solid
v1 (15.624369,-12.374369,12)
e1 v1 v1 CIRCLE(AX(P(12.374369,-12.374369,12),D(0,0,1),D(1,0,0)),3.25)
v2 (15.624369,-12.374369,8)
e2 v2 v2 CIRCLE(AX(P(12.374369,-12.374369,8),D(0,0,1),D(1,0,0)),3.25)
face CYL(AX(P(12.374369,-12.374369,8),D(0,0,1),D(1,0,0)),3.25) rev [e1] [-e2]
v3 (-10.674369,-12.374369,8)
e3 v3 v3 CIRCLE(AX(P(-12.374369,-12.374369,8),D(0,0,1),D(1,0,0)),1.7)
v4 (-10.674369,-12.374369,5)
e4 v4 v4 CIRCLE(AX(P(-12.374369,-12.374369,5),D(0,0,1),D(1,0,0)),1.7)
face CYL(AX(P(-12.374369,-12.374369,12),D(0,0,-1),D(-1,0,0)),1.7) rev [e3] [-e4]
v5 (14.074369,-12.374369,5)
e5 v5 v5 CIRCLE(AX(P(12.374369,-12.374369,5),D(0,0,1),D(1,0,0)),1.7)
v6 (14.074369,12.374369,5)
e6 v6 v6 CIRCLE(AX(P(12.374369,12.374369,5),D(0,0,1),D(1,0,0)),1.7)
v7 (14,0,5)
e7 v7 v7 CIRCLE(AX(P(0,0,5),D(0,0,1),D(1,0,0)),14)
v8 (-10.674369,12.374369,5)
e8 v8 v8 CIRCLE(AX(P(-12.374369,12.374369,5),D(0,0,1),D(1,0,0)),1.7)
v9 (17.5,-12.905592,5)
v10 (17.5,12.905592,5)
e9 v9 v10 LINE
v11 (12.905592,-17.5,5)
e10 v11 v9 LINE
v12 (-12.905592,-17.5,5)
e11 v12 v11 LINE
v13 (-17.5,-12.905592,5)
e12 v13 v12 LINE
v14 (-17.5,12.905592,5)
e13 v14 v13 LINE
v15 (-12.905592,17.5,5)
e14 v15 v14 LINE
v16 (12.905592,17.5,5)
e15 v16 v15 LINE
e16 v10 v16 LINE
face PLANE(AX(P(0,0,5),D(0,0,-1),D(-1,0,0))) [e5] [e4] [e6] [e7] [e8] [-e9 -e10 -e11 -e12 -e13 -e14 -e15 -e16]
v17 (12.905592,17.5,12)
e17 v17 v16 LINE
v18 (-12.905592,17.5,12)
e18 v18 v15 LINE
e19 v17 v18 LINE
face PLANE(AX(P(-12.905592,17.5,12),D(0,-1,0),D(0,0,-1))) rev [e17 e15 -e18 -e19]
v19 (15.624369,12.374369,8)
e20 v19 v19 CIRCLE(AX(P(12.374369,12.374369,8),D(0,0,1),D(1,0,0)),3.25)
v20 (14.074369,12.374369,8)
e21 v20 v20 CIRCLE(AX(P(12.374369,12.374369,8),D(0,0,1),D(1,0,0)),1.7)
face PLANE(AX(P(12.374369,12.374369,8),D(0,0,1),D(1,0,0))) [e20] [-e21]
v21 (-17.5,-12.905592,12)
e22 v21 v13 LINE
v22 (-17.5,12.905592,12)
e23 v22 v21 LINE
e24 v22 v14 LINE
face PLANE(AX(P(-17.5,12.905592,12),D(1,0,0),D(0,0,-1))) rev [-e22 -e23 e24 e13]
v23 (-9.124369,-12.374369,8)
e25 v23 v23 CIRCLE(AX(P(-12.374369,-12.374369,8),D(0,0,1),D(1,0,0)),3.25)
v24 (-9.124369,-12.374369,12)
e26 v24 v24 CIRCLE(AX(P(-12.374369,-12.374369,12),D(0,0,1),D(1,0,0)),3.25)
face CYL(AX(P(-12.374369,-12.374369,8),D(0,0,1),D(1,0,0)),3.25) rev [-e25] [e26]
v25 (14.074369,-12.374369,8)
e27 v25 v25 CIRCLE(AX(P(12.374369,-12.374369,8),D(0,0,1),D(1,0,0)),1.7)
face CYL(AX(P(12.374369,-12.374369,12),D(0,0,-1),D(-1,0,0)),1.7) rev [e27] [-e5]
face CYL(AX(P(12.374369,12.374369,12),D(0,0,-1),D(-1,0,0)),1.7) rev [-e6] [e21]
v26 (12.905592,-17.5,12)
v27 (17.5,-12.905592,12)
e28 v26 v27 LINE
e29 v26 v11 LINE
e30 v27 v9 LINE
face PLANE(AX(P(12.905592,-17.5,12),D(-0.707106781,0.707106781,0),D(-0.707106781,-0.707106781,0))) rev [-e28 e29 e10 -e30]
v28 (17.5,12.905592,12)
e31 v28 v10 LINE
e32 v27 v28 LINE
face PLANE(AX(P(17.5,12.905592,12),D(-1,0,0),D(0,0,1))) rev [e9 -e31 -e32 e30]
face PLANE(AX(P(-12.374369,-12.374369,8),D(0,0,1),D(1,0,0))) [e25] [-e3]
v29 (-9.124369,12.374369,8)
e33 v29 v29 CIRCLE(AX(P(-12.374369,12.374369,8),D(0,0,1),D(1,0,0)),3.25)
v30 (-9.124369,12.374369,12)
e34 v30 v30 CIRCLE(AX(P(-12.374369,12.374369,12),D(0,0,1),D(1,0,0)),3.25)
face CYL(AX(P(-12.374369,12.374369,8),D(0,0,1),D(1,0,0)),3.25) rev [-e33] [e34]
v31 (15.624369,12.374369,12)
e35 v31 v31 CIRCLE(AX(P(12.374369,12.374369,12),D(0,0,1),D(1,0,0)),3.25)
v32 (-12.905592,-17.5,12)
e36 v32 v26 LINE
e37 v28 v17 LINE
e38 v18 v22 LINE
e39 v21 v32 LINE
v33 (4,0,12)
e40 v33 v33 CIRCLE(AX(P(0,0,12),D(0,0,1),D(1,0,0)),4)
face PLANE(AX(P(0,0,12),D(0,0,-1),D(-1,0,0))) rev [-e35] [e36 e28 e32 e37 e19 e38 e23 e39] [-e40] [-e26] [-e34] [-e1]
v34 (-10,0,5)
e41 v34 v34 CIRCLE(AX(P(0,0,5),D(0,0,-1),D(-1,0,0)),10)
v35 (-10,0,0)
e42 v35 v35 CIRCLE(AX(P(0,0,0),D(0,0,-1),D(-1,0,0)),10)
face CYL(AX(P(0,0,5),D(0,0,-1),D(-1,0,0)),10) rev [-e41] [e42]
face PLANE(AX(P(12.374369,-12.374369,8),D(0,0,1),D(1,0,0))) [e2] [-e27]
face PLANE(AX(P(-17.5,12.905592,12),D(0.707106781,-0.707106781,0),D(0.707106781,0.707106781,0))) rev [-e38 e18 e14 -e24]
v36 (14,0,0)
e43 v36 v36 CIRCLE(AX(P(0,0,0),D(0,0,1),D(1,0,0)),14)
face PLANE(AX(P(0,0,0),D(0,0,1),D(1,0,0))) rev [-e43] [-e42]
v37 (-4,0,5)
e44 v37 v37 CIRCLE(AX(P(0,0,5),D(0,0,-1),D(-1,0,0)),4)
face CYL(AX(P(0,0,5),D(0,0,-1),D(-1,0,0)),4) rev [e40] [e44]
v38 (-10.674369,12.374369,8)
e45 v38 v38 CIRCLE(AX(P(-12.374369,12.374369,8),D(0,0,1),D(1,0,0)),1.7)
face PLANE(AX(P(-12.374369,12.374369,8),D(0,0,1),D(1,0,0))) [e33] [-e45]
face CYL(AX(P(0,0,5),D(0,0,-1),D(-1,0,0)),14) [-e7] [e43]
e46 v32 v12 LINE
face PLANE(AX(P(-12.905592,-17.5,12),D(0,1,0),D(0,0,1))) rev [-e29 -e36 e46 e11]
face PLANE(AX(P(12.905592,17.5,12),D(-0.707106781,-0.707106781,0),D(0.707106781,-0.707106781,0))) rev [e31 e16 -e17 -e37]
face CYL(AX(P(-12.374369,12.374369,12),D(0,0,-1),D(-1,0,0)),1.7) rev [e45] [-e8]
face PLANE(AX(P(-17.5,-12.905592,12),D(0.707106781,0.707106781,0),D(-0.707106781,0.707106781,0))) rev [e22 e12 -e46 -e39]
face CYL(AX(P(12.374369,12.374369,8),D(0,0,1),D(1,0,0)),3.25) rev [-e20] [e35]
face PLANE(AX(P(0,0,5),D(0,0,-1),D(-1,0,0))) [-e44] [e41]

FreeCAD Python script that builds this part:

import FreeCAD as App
import Part
import Sketcher
from FreeCAD import Vector
Q = App.Units.Quantity

doc = App.newDocument("Part")
params = doc.addObject("Spreadsheet::Sheet", "Params")
for row, (alias, value) in enumerate([
    ("sketch1_diameter", "28 mm"),
    ("sketch1_diameter2", "8 mm"),
    ("pad1_length", "5 mm"),
    ("sketch2_diameter", "8 mm"),
    ("sketch2_diameter2", "3.4 mm"),
    ("pad2_length", "7 mm"),
    ("sketch3_diameter", "6.5 mm"),
    ("pocket1_length", "4 mm"),
    ("sketch4_diameter", "20 mm"),
    ("pocket2_length", "5 mm"),
], start=1):
    params.set(f"A{row}", alias)
    params.set(f"B{row}", "=" + value)
    params.setAlias(f"B{row}", alias)

body = doc.addObject("PartDesign::Body", "Body")

sketch1 = body.newObject("Sketcher::SketchObject", "Sketch")
sketch1.AttachmentSupport = (doc.getObject("XY_Plane"), [""])
sketch1.MapMode = "FlatFace"
sketch1.addGeometry([
    Part.Circle(Vector(0, 0, 0), Vector(0, 0, 1), 14),
    Part.Circle(Vector(0, 0, 0), Vector(0, 0, 1), 4),
], False)
sketch1.addConstraint([
    Sketcher.Constraint("Coincident", 0, 3, -1, 1),
    Sketcher.Constraint("Coincident", 1, 3, -1, 1),
    Sketcher.Constraint("Diameter", 0, Q("28 mm")),
    Sketcher.Constraint("Diameter", 1, Q("8 mm")),
])
sketch1.setExpression("Constraints[2]", "Params.sketch1_diameter")
sketch1.setExpression("Constraints[3]", "Params.sketch1_diameter2")
pad1 = body.newObject("PartDesign::Pad", "Pad")
pad1.Profile = sketch1
pad1.setExpression("Length", "Params.pad1_length")

sketch2 = body.newObject("Sketcher::SketchObject", "Sketch001")
sketch2.AttachmentSupport = (doc.getObject("XY_Plane"), [""])
sketch2.MapMode = "FlatFace"
sketch2.AttachmentOffset = App.Placement(Vector(0, 0, 5), App.Rotation())
sketch2.addGeometry([
    Part.LineSegment(Vector(-12.9, 17.5, 0), Vector(-17.5, 12.9, 0)),
    Part.LineSegment(Vector(-17.5, 12.9, 0), Vector(-17.5, -12.9, 0)),
    Part.LineSegment(Vector(-17.5, -12.9, 0), Vector(-12.9, -17.5, 0)),
    Part.LineSegment(Vector(-12.9, -17.5, 0), Vector(12.9, -17.5, 0)),
    Part.LineSegment(Vector(12.9, -17.5, 0), Vector(17.5, -12.9, 0)),
    Part.LineSegment(Vector(17.5, -12.9, 0), Vector(17.5, 12.9, 0)),
    Part.LineSegment(Vector(17.5, 12.9, 0), Vector(12.9, 17.5, 0)),
    Part.LineSegment(Vector(12.9, 17.5, 0), Vector(-12.9, 17.5, 0)),
    Part.Circle(Vector(12.4, -12.4, 0), Vector(0, 0, 1), 1.7),
    Part.Circle(Vector(0, 0, 0), Vector(0, 0, 1), 4),
    Part.Circle(Vector(-12.4, -12.4, 0), Vector(0, 0, 1), 1.7),
    Part.Circle(Vector(12.4, 12.4, 0), Vector(0, 0, 1), 1.7),
    Part.Circle(Vector(-12.4, 12.4, 0), Vector(0, 0, 1), 1.7),
], False)
sketch2.addConstraint([
    Sketcher.Constraint("Coincident", 0, 2, 1, 1),
    Sketcher.Constraint("Coincident", 1, 2, 2, 1),
    Sketcher.Constraint("Coincident", 2, 2, 3, 1),
    Sketcher.Constraint("Coincident", 3, 2, 4, 1),
    Sketcher.Constraint("Coincident", 4, 2, 5, 1),
    Sketcher.Constraint("Coincident", 5, 2, 6, 1),
    Sketcher.Constraint("Coincident", 6, 2, 7, 1),
    Sketcher.Constraint("Coincident", 7, 2, 0, 1),
    Sketcher.Constraint("Vertical", 1),
    Sketcher.Constraint("Horizontal", 3),
    Sketcher.Constraint("Vertical", 5),
    Sketcher.Constraint("Horizontal", 7),
    Sketcher.Constraint("Coincident", 9, 3, -1, 1),
    Sketcher.Constraint("Equal", 8, 10),
    Sketcher.Constraint("Equal", 10, 11),
    Sketcher.Constraint("Equal", 11, 12),
    Sketcher.Constraint("Symmetric", 10, 3, 11, 3, -1, 1),
    Sketcher.Constraint("Symmetric", 8, 3, 12, 3, -1, 1),
    Sketcher.Constraint("Symmetric", 0, 2, 4, 2, -1, 1),
    Sketcher.Constraint("Symmetric", 2, 2, 6, 2, -1, 1),
    Sketcher.Constraint("Symmetric", 8, 3, 10, 3, -2),
    Sketcher.Constraint("Perpendicular", 0, 2),
    Sketcher.Constraint("Perpendicular", 2, 4),
    Sketcher.Constraint("Perpendicular", 4, 6),
    Sketcher.Constraint("Horizontal", 1, 2, 4, 2),
    Sketcher.Constraint("Vertical", 3, 2, 6, 2),
    Sketcher.Constraint("Equal", 7, 1),
    Sketcher.Constraint("Diameter", 9, Q("8 mm")),
    Sketcher.Constraint("Diameter", 8, Q("3.4 mm")),
    Sketcher.Constraint("DistanceX", 0, 2, -1, 1, Q("17.5 mm")),
    Sketcher.Constraint("DistanceX", 3, 1, 3, 2, Q("25.811183 mm")),
    Sketcher.Constraint("DistanceX", -1, 1, 8, 3, Q("12.374369 mm")),
    Sketcher.Constraint("DistanceY", 8, 3, -1, 1, Q("12.374369 mm")),
])
sketch2.setExpression("Constraints[27]", "Params.sketch2_diameter")
sketch2.setExpression("Constraints[28]", "Params.sketch2_diameter2")
pad2 = body.newObject("PartDesign::Pad", "Pad001")
pad2.Profile = sketch2
pad2.setExpression("Length", "Params.pad2_length")

sketch3 = body.newObject("Sketcher::SketchObject", "Sketch002")
sketch3.AttachmentSupport = (doc.getObject("XY_Plane"), [""])
sketch3.MapMode = "FlatFace"
sketch3.AttachmentOffset = App.Placement(Vector(0, 0, 12), App.Rotation())
sketch3.addGeometry([
    Part.Circle(Vector(-12.4, 12.4, 0), Vector(0, 0, 1), 3.2),
    Part.Circle(Vector(12.4, 12.4, 0), Vector(0, 0, 1), 3.2),
    Part.Circle(Vector(12.4, -12.4, 0), Vector(0, 0, 1), 3.2),
    Part.Circle(Vector(-12.4, -12.4, 0), Vector(0, 0, 1), 3.2),
], False)
sketch3.addConstraint([
    Sketcher.Constraint("Equal", 0, 1),
    Sketcher.Constraint("Equal", 1, 2),
    Sketcher.Constraint("Equal", 2, 3),
    Sketcher.Constraint("Symmetric", 0, 3, 2, 3, -1, 1),
    Sketcher.Constraint("Symmetric", 1, 3, 3, 3, -1, 1),
    Sketcher.Constraint("Symmetric", 0, 3, 1, 3, -2),
    Sketcher.Constraint("Diameter", 0, Q("6.5 mm")),
    Sketcher.Constraint("DistanceX", 0, 3, -1, 1, Q("12.374369 mm")),
    Sketcher.Constraint("DistanceY", -1, 1, 0, 3, Q("12.374369 mm")),
])
sketch3.setExpression("Constraints[6]", "Params.sketch3_diameter")
pocket1 = body.newObject("PartDesign::Pocket", "Pocket")
pocket1.Profile = sketch3
pocket1.setExpression("Length", "Params.pocket1_length")

sketch4 = body.newObject("Sketcher::SketchObject", "Sketch003")
sketch4.AttachmentSupport = (doc.getObject("XY_Plane"), [""])
sketch4.MapMode = "FlatFace"
sketch4.addGeometry(Part.Circle(Vector(0, 0, 0), Vector(0, 0, 1), 10), False)
sketch4.addConstraint([
    Sketcher.Constraint("Coincident", 0, 3, -1, 1),
    Sketcher.Constraint("Diameter", 0, Q("20 mm")),
])
sketch4.setExpression("Constraints[1]", "Params.sketch4_diameter")
pocket2 = body.newObject("PartDesign::Pocket", "Pocket001")
pocket2.Profile = sketch4
pocket2.setExpression("Length", "Params.pocket2_length")
pocket2.Reversed = True

doc.recompute()
